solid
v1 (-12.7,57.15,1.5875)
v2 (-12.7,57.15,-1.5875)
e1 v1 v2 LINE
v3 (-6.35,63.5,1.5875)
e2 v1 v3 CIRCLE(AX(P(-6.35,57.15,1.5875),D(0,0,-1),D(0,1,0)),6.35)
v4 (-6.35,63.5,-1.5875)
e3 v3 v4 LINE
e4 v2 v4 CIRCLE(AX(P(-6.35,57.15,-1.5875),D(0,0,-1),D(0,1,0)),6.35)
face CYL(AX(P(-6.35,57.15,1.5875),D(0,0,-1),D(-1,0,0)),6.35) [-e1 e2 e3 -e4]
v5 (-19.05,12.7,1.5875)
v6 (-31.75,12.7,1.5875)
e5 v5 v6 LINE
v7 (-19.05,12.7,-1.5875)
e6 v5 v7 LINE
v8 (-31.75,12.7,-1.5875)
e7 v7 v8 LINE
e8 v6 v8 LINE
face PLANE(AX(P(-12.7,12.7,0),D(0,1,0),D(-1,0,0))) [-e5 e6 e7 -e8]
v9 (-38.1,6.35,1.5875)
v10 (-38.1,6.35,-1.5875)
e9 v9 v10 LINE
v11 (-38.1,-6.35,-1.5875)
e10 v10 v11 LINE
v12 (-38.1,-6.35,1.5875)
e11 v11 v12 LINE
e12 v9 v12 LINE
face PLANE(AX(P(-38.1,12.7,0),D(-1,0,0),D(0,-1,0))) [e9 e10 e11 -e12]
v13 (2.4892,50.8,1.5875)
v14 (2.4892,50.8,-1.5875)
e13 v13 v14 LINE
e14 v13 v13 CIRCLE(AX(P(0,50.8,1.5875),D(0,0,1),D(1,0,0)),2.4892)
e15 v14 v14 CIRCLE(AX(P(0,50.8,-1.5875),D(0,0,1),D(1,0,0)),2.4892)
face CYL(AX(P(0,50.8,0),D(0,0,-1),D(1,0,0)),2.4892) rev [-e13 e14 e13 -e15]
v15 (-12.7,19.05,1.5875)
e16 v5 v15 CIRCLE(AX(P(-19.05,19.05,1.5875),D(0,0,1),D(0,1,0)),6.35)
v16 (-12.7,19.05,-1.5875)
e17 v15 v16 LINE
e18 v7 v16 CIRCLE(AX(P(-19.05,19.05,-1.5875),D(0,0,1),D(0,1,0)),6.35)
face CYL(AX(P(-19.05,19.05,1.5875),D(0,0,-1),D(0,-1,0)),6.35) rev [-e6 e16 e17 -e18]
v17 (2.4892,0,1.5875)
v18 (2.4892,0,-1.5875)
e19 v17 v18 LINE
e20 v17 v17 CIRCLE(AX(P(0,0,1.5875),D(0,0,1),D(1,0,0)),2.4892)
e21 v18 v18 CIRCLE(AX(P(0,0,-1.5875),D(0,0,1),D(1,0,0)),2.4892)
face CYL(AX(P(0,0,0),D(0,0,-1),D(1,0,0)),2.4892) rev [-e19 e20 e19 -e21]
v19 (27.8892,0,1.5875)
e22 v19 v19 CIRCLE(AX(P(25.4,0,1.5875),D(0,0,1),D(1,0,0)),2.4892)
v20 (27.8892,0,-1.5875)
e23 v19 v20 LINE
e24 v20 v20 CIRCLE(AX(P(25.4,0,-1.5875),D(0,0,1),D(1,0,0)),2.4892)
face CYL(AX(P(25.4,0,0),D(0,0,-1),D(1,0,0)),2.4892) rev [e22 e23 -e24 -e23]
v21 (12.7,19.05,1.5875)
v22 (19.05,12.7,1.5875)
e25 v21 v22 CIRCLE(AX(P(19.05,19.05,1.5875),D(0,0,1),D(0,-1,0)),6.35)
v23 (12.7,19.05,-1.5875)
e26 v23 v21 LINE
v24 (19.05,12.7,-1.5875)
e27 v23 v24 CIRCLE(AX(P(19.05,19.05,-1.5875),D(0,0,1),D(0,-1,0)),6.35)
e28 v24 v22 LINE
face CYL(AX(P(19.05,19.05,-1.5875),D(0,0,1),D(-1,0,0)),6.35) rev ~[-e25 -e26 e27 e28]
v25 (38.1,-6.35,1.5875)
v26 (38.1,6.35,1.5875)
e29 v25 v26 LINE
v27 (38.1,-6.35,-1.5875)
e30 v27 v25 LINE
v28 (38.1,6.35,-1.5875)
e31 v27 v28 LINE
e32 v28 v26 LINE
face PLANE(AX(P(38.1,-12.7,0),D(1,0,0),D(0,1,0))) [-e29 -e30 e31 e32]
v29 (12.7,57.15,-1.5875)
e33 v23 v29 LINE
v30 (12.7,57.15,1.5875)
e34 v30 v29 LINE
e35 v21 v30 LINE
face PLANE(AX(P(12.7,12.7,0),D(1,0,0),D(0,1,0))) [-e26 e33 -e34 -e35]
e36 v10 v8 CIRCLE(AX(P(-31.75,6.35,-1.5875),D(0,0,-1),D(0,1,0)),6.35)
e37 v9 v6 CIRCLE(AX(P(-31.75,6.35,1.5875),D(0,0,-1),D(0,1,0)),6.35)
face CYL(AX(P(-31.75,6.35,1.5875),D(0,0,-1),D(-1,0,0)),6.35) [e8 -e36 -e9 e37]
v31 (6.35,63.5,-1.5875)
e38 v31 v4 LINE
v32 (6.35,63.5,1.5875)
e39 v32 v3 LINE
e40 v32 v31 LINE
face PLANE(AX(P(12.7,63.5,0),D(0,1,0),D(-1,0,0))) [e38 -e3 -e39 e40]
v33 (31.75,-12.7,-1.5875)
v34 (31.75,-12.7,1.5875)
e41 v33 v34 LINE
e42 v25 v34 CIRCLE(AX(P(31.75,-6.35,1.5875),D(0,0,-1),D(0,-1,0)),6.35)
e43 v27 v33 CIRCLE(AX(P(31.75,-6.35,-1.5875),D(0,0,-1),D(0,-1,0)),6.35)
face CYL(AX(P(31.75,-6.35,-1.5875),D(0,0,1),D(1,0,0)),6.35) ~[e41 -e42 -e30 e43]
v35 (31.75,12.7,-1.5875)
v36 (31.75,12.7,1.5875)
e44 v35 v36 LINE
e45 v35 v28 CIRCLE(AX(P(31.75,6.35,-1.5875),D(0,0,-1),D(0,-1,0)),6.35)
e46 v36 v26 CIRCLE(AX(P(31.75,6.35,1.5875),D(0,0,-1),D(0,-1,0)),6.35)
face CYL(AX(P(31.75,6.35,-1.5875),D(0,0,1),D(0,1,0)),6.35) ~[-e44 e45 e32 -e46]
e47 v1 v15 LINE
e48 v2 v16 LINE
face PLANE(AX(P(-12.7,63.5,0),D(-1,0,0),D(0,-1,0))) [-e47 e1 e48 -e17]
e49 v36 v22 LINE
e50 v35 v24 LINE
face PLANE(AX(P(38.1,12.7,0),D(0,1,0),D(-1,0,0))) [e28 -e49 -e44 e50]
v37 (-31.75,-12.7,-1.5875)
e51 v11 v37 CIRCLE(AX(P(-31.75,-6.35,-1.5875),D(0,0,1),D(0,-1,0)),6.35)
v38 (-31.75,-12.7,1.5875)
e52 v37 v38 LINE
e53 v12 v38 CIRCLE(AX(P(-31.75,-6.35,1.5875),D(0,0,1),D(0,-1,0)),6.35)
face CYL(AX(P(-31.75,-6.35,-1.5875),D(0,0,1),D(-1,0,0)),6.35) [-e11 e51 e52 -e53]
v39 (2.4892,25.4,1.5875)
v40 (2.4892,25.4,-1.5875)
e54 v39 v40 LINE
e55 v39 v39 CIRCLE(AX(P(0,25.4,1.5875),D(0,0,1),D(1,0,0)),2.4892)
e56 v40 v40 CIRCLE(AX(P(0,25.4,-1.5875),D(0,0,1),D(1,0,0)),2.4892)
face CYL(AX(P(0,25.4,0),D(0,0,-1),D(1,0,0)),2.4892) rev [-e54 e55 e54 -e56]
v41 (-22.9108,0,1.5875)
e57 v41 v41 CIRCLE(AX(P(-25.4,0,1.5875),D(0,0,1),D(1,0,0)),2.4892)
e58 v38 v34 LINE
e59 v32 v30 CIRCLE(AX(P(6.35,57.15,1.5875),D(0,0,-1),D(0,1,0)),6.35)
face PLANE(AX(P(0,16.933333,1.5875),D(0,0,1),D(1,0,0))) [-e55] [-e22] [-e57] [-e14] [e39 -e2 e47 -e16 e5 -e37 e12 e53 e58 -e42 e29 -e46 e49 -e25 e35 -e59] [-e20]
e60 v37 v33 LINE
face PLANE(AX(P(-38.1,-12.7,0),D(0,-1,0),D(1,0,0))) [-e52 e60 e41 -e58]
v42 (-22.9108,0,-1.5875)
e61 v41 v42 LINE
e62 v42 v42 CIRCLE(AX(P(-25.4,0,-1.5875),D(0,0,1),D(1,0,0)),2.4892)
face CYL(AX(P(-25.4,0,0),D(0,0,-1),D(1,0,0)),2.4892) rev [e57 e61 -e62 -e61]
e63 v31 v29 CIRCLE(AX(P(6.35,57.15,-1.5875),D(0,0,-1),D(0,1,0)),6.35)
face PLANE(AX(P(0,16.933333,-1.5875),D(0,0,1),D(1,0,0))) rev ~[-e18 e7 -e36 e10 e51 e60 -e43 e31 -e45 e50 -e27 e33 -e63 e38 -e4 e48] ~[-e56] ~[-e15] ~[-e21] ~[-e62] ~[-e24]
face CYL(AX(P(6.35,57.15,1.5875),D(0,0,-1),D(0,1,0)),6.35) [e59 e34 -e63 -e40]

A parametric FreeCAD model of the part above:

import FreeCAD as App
import Part
import Sketcher
from FreeCAD import Vector
Q = App.Units.Quantity


def edges_at(feature, points):
    """Names of the edges that pass closest to the given points."""
    edges = feature.Shape.Edges
    near = lambda p: min(range(len(edges)), key=lambda i: edges[i].distToShape(Part.Vertex(*p))[0])
    return sorted({f"Edge{near(p) + 1}" for p in points})


def add_polygon(sketch, points):
    """Adds a closed chain of lines whose ends are joined by coincident constraints."""
    first, n = sketch.GeometryCount, len(points)
    for a, b in zip(points, points[1:] + points[:1]):
        sketch.addGeometry(Part.LineSegment(App.Vector(*a, 0), App.Vector(*b, 0)), False)
    for i in range(n):
        sketch.addConstraint(Sketcher.Constraint("Coincident", first + i, 2, first + (i + 1) % n, 1))

doc = App.newDocument("Part")
params = doc.addObject("Spreadsheet::Sheet", "Params")
for row, (alias, value) in enumerate([
    ("sketch1_width", "3 in"),
    ("sketch1_height", "2 in"),
    ("sketch1_diameter", "0.196 in"),
    ("pad1_length", "0.125 in"),
    ("fillet_radius", "0.25 in"),
], start=1):
    params.set(f"A{row}", alias)
    params.set(f"B{row}", "=" + value)
    params.setAlias(f"B{row}", alias)

body = doc.addObject("PartDesign::Body", "Body")

sketch1 = body.newObject("Sketcher::SketchObject", "Sketch")
sketch1.AttachmentSupport = (doc.getObject("XY_Plane"), [""])
sketch1.MapMode = "FlatFace"
add_polygon(sketch1, [(-38.1, 12.7), (-38.1, -12.7), (38.1, -12.7), (38.1, 12.7), (12.7, 12.7), (12.7, 63.5), (-12.7, 63.5), (-12.7, 12.7)])
sketch1.addGeometry(Part.Circle(Vector(-25.4, 0, 0), Vector(0, 0, 1), 2.4892), False)
sketch1.addGeometry(Part.Circle(Vector(0, 0, 0), Vector(0, 0, 1), 2.4892), False)
sketch1.addGeometry(Part.Circle(Vector(25.4, 0, 0), Vector(0, 0, 1), 2.4892), False)
sketch1.addGeometry(Part.Circle(Vector(0, 25.4, 0), Vector(0, 0, 1), 2.4892), False)
sketch1.addGeometry(Part.Circle(Vector(0, 50.8, 0), Vector(0, 0, 1), 2.4892), False)
sketch1.addConstraint(Sketcher.Constraint("Vertical", 0))
sketch1.addConstraint(Sketcher.Constraint("Horizontal", 1))
sketch1.addConstraint(Sketcher.Constraint("Vertical", 2))
sketch1.addConstraint(Sketcher.Constraint("Horizontal", 3))
sketch1.addConstraint(Sketcher.Constraint("Vertical", 4))
sketch1.addConstraint(Sketcher.Constraint("Horizontal", 5))
sketch1.addConstraint(Sketcher.Constraint("Vertical", 6))
sketch1.addConstraint(Sketcher.Constraint("Horizontal", 7))
sketch1.addConstraint(Sketcher.Constraint("Coincident", 9, 3, -1, 1))
sketch1.addConstraint(Sketcher.Constraint("Equal", 8, 9))
sketch1.addConstraint(Sketcher.Constraint("Equal", 9, 10))
sketch1.addConstraint(Sketcher.Constraint("Equal", 10, 11))
sketch1.addConstraint(Sketcher.Constraint("Equal", 11, 12))
sketch1.addConstraint(Sketcher.Constraint("Symmetric", 8, 3, 10, 3, -1, 1))
sketch1.addConstraint(Sketcher.Constraint("Symmetric", 0, 2, 2, 2, -1, 1))
sketch1.addConstraint(Sketcher.Constraint("Symmetric", 3, 2, 6, 2, -2))
sketch1.addConstraint(Sketcher.Constraint("PointOnObject", 8, 3, -1))
sketch1.addConstraint(Sketcher.Constraint("PointOnObject", 11, 3, -2))
sketch1.addConstraint(Sketcher.Constraint("PointOnObject", 12, 3, -2))
sketch1.addConstraint(Sketcher.Constraint("Equal", 3, 5))
sketch1.addConstraint(Sketcher.Constraint("Equal", 7, 0))
sketch1.addConstraint(Sketcher.Constraint("DistanceX", 1, 1, 1, 2, Q("3 in")))
sketch1.addConstraint(Sketcher.Constraint("DistanceY", 4, 1, 4, 2, Q("2 in")))
sketch1.addConstraint(Sketcher.Constraint("Diameter", 8, Q("0.196 in")))
sketch1.addConstraint(Sketcher.Constraint("DistanceX", 8, 3, -1, 1, Q("1 in")))
sketch1.addConstraint(Sketcher.Constraint("DistanceY", -1, 1, 11, 3, Q("1 in")))
sketch1.addConstraint(Sketcher.Constraint("DistanceY", -1, 1, 12, 3, Q("2 in")))
sketch1.setExpression("Constraints[29]", "Params.sketch1_width")
sketch1.setExpression("Constraints[30]", "Params.sketch1_height")
sketch1.setExpression("Constraints[31]", "Params.sketch1_diameter")
pad1 = body.newObject("PartDesign::Pad", "Pad")
pad1.Profile = sketch1
pad1.setExpression("Length", "Params.pad1_length")
pad1.Midplane = True
doc.recompute()

fillet = body.newObject("PartDesign::Fillet", "Fillet")
fillet.Base = (pad1, edges_at(pad1, [
    (-12.7, 12.7, 0),
    (-12.7, 63.5, 0),
    (12.7, 63.5, 0),
    (12.7, 12.7, 0),
    (38.1, 12.7, 0),
    (38.1, -12.7, 0),
    (-38.1, -12.7, 0),
    (-38.1, 12.7, 0),
]))
fillet.setExpression("Radius", "Params.fillet_radius")

doc.recompute()
